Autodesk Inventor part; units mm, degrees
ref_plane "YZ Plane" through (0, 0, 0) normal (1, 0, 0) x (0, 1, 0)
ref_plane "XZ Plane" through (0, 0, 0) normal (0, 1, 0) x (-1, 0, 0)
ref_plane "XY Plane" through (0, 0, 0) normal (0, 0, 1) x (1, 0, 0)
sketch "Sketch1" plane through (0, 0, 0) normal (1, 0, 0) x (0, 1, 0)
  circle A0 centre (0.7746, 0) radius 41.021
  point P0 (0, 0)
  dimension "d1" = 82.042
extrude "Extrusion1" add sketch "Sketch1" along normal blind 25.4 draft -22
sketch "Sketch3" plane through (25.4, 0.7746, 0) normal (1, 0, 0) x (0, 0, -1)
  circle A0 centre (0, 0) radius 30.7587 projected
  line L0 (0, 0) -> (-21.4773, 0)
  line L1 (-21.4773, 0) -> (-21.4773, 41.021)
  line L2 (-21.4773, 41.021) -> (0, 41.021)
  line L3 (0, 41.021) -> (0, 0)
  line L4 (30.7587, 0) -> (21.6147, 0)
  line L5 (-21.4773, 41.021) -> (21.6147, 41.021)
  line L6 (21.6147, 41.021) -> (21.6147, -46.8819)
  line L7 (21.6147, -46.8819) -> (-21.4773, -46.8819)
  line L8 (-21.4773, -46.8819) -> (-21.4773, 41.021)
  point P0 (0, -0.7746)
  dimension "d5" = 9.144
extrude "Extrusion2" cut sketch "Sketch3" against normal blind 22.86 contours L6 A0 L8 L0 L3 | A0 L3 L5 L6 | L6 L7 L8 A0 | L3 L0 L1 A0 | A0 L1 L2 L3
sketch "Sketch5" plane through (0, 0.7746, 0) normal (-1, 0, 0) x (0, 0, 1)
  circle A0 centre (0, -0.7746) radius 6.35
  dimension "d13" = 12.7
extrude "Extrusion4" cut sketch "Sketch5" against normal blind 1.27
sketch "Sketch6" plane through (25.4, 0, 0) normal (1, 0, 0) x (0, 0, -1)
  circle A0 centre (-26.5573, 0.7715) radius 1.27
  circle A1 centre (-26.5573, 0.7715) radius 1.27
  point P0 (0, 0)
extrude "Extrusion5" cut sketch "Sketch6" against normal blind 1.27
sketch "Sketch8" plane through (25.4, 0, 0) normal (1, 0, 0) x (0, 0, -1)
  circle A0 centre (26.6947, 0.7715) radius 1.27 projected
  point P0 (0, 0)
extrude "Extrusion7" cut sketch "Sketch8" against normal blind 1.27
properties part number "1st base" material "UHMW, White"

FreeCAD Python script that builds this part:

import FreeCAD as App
import Part
import Sketcher

V = App.Vector
Q = App.Units.Quantity

doc = App.newDocument("Part")
params = doc.addObject("Spreadsheet::Sheet", "Params")
for row, (alias, value) in enumerate([
    ("sketch1_diameter", "3.23 in"),
    ("pad1_length", "1 in"),
    ("pad1_taper", "-22 deg"),
    ("pocket1_length", "0.9 in"),
    ("sketch3_diameter", "0.5 in"),
    ("pocket2_length", "0.05 in"),
    ("sketch4_diameter", "0.1 in"),
    ("pocket3_length", "0.05 in"),
    ("sketch5_diameter", "0.1 in"),
    ("pocket4_length", "0.05 in"),
], start=1):
    params.set(f"A{row}", alias)
    params.set(f"B{row}", "=" + value)
    params.setAlias(f"B{row}", alias)

body = doc.addObject("PartDesign::Body", "Body")

sketch1 = doc.addObject("Sketcher::SketchObject", "Sketch")
body.addObject(sketch1)
sketch1.AttachmentSupport = (doc.YZ_Plane, [""])
sketch1.MapMode = "FlatFace"
sketch1.addGeometry(Part.Circle(V(1, 0, 0), V(0, 0, 1), 41), False)
sketch1.addConstraint([
    Sketcher.Constraint("PointOnObject", 0, 3, -1),
    Sketcher.Constraint("Diameter", 0, Q("3.23 in")),
    Sketcher.Constraint("DistanceX", -1, 1, 0, 3, Q("0.0305 in")),
])
sketch1.setExpression("Constraints[1]", "Params.sketch1_diameter")
pad1 = doc.addObject("PartDesign::Pad", "Pad")
body.addObject(pad1)
pad1.Profile = sketch1
pad1.setExpression("Length", "Params.pad1_length")
pad1.setExpression("TaperAngle", "Params.pad1_taper")

sketch2 = doc.addObject("Sketcher::SketchObject", "Sketch001")
body.addObject(sketch2)
sketch2.AttachmentSupport = (doc.YZ_Plane, [""])
sketch2.MapMode = "FlatFace"
sketch2.AttachmentOffset = App.Placement(V(0, 0, 1 * 25.4), App.Rotation())
sketch2.addGeometry([
    Part.LineSegment(V(42, -22, 0), V(42, 21, 0)),
    Part.LineSegment(V(42, 21, 0), V(-46, 21, 0)),
    Part.LineSegment(V(-46, 21, 0), V(-46, -22, 0)),
    Part.LineSegment(V(-46, -22, 0), V(42, -22, 0)),
], False)
sketch2.addConstraint([
    Sketcher.Constraint("Coincident", 0, 2, 1, 1),
    Sketcher.Constraint("Coincident", 1, 2, 2, 1),
    Sketcher.Constraint("Coincident", 2, 2, 3, 1),
    Sketcher.Constraint("Coincident", 3, 2, 0, 1),
    Sketcher.Constraint("Vertical", 0),
    Sketcher.Constraint("Horizontal", 1),
    Sketcher.Constraint("Vertical", 2),
    Sketcher.Constraint("Horizontal", 3),
    Sketcher.Constraint("DistanceX", 1, 2, 1, 1, Q("87.903 mm")),
    Sketcher.Constraint("DistanceY", 0, 1, 0, 2, Q("43.092 mm")),
    Sketcher.Constraint("DistanceX", -1, 1, 0, 2, Q("1.6455 in")),
    Sketcher.Constraint("DistanceY", -1, 1, 0, 2, Q("21.4773 mm")),
])
pocket1 = doc.addObject("PartDesign::Pocket", "Pocket")
body.addObject(pocket1)
pocket1.Profile = sketch2
pocket1.setExpression("Length", "Params.pocket1_length")

sketch3 = doc.addObject("Sketcher::SketchObject", "Sketch002")
body.addObject(sketch3)
sketch3.AttachmentSupport = (doc.YZ_Plane, [""])
sketch3.MapMode = "FlatFace"
sketch3.addGeometry(Part.Circle(V(0, 0, 0), V(0, 0, 1), 6), False)
sketch3.addConstraint([
    Sketcher.Constraint("Coincident", 0, 3, -1, 1),
    Sketcher.Constraint("Diameter", 0, Q("0.5 in")),
])
sketch3.setExpression("Constraints[1]", "Params.sketch3_diameter")
pocket2 = doc.addObject("PartDesign::Pocket", "Pocket001")
body.addObject(pocket2)
pocket2.Profile = sketch3
pocket2.setExpression("Length", "Params.pocket2_length")
pocket2.Reversed = True

sketch4 = doc.addObject("Sketcher::SketchObject", "Sketch003")
body.addObject(sketch4)
sketch4.AttachmentSupport = (doc.YZ_Plane, [""])
sketch4.MapMode = "FlatFace"
sketch4.AttachmentOffset = App.Placement(V(0, 0, 1 * 25.4), App.Rotation())
sketch4.addGeometry(Part.Circle(V(0.8, 26.6, 0), V(0, 0, 1), 1.3), False)
sketch4.addConstraint([
    Sketcher.Constraint("Diameter", 0, Q("0.1 in")),
    Sketcher.Constraint("DistanceX", -1, 1, 0, 3, Q("0.7715 mm")),
    Sketcher.Constraint("DistanceY", -1, 1, 0, 3, Q("26.5573 mm")),
])
sketch4.setExpression("Constraints[0]", "Params.sketch4_diameter")
pocket3 = doc.addObject("PartDesign::Pocket", "Pocket002")
body.addObject(pocket3)
pocket3.Profile = sketch4
pocket3.setExpression("Length", "Params.pocket3_length")

sketch5 = doc.addObject("Sketcher::SketchObject", "Sketch004")
body.addObject(sketch5)
sketch5.AttachmentSupport = (doc.YZ_Plane, [""])
sketch5.MapMode = "FlatFace"
sketch5.AttachmentOffset = App.Placement(V(0, 0, 1 * 25.4), App.Rotation())
sketch5.addGeometry(Part.Circle(V(0.8, -26.7, 0), V(0, 0, 1), 1.3), False)
sketch5.addConstraint([
    Sketcher.Constraint("Diameter", 0, Q("0.1 in")),
    Sketcher.Constraint("DistanceX", -1, 1, 0, 3, Q("0.7715 mm")),
    Sketcher.Constraint("DistanceY", 0, 3, -1, 1, Q("26.6947 mm")),
])
sketch5.setExpression("Constraints[0]", "Params.sketch5_diameter")
pocket4 = doc.addObject("PartDesign::Pocket", "Pocket003")
body.addObject(pocket4)
pocket4.Profile = sketch5
pocket4.setExpression("Length", "Params.pocket4_length")

doc.recompute()
